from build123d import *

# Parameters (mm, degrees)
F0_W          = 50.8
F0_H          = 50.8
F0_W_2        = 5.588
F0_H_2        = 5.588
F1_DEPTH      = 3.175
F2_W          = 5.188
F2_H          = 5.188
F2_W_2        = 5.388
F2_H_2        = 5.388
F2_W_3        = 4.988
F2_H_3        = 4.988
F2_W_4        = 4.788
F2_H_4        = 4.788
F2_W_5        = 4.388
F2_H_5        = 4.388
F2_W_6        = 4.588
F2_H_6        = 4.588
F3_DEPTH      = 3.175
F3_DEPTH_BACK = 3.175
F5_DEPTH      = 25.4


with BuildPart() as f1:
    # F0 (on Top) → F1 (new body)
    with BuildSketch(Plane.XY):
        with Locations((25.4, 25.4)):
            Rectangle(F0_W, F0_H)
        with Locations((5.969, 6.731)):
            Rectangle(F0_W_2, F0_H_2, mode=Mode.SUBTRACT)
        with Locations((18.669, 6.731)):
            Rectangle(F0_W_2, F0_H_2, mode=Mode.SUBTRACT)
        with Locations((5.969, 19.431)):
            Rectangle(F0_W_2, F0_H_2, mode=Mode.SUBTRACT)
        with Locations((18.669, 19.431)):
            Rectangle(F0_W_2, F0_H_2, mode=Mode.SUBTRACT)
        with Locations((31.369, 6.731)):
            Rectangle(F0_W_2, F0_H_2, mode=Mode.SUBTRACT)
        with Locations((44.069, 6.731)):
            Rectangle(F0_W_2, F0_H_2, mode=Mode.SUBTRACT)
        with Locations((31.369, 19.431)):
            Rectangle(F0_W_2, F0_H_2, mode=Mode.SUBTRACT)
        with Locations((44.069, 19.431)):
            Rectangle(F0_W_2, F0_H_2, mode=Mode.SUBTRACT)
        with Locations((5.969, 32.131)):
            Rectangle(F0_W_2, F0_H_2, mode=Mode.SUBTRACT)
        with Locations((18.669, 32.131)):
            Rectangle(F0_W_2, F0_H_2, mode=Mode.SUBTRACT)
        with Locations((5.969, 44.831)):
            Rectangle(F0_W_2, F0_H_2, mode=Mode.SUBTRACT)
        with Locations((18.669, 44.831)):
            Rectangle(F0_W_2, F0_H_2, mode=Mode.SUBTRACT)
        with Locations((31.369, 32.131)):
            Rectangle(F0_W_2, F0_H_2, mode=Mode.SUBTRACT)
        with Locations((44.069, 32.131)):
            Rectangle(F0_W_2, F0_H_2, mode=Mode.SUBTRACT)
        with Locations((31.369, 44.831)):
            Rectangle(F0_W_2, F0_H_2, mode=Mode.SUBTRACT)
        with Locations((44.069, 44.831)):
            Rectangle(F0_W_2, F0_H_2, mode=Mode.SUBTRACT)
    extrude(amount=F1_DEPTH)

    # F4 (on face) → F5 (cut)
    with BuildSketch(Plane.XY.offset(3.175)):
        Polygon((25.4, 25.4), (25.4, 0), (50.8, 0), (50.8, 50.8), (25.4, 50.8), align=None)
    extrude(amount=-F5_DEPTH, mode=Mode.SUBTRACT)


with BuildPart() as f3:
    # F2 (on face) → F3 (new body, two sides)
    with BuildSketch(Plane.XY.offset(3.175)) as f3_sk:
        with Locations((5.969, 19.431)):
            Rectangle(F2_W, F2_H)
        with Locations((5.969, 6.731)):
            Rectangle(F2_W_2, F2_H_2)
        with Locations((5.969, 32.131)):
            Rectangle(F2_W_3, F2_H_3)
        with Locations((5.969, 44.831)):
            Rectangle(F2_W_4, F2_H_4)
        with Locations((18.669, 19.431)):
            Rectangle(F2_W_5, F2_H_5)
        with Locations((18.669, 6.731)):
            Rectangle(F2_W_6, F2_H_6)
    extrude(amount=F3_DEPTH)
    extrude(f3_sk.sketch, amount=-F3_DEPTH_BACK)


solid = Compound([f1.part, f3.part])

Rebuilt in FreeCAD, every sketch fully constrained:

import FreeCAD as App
import Part
import Sketcher
from FreeCAD import Vector
Q = App.Units.Quantity


def add_polygon(sketch, points):
    """Adds a closed chain of lines whose ends are joined by coincident constraints."""
    first, n = sketch.GeometryCount, len(points)
    for a, b in zip(points, points[1:] + points[:1]):
        sketch.addGeometry(Part.LineSegment(App.Vector(*a, 0), App.Vector(*b, 0)), False)
    for i in range(n):
        sketch.addConstraint(Sketcher.Constraint("Coincident", first + i, 2, first + (i + 1) % n, 1))

doc = App.newDocument("Part")
body = doc.addObject("PartDesign::Body", "Body")

sketch1 = body.newObject("Sketcher::SketchObject", "Sketch")
sketch1.AttachmentSupport = (doc.getObject("XY_Plane"), [""])
sketch1.MapMode = "FlatFace"
add_polygon(sketch1, [(0, 50.8), (0, 0), (50.8, 0), (50.8, 50.8)])
add_polygon(sketch1, [(8.763, 3.937), (3.175, 3.937), (3.175, 9.525), (8.763, 9.525)])
add_polygon(sketch1, [(21.463, 3.937), (15.875, 3.937), (15.875, 9.525), (21.463, 9.525)])
add_polygon(sketch1, [(8.763, 16.637), (3.175, 16.637), (3.175, 22.225), (8.763, 22.225)])
add_polygon(sketch1, [(21.463, 16.637), (15.875, 16.637), (15.875, 22.225), (21.463, 22.225)])
add_polygon(sketch1, [(34.163, 3.937), (28.575, 3.937), (28.575, 9.525), (34.163, 9.525)])
add_polygon(sketch1, [(46.863, 3.937), (41.275, 3.937), (41.275, 9.525), (46.863, 9.525)])
add_polygon(sketch1, [(34.163, 16.637), (28.575, 16.637), (28.575, 22.225), (34.163, 22.225)])
add_polygon(sketch1, [(46.863, 16.637), (41.275, 16.637), (41.275, 22.225), (46.863, 22.225)])
add_polygon(sketch1, [(8.763, 29.337), (3.175, 29.337), (3.175, 34.925), (8.763, 34.925)])
add_polygon(sketch1, [(21.463, 29.337), (15.875, 29.337), (15.875, 34.925), (21.463, 34.925)])
add_polygon(sketch1, [(8.763, 42.037), (3.175, 42.037), (3.175, 47.625), (8.763, 47.625)])
add_polygon(sketch1, [(21.463, 42.037), (15.875, 42.037), (15.875, 47.625), (21.463, 47.625)])
add_polygon(sketch1, [(34.163, 29.337), (28.575, 29.337), (28.575, 34.925), (34.163, 34.925)])
add_polygon(sketch1, [(46.863, 29.337), (41.275, 29.337), (41.275, 34.925), (46.863, 34.925)])
add_polygon(sketch1, [(34.163, 42.037), (28.575, 42.037), (28.575, 47.625), (34.163, 47.625)])
add_polygon(sketch1, [(46.863, 42.037), (41.275, 42.037), (41.275, 47.625), (46.863, 47.625)])
sketch1.addConstraint(Sketcher.Constraint("Vertical", 0))
sketch1.addConstraint(Sketcher.Constraint("Horizontal", 1))
sketch1.addConstraint(Sketcher.Constraint("Vertical", 2))
sketch1.addConstraint(Sketcher.Constraint("Horizontal", 3))
sketch1.addConstraint(Sketcher.Constraint("Horizontal", 4))
sketch1.addConstraint(Sketcher.Constraint("Vertical", 5))
sketch1.addConstraint(Sketcher.Constraint("Horizontal", 6))
sketch1.addConstraint(Sketcher.Constraint("Vertical", 7))
sketch1.addConstraint(Sketcher.Constraint("Horizontal", 8))
sketch1.addConstraint(Sketcher.Constraint("Vertical", 9))
sketch1.addConstraint(Sketcher.Constraint("Horizontal", 10))
sketch1.addConstraint(Sketcher.Constraint("Vertical", 11))
sketch1.addConstraint(Sketcher.Constraint("Horizontal", 12))
sketch1.addConstraint(Sketcher.Constraint("Vertical", 13))
sketch1.addConstraint(Sketcher.Constraint("Horizontal", 14))
sketch1.addConstraint(Sketcher.Constraint("Vertical", 15))
sketch1.addConstraint(Sketcher.Constraint("Horizontal", 16))
sketch1.addConstraint(Sketcher.Constraint("Vertical", 17))
sketch1.addConstraint(Sketcher.Constraint("Horizontal", 18))
sketch1.addConstraint(Sketcher.Constraint("Vertical", 19))
sketch1.addConstraint(Sketcher.Constraint("Horizontal", 20))
sketch1.addConstraint(Sketcher.Constraint("Vertical", 21))
sketch1.addConstraint(Sketcher.Constraint("Horizontal", 22))
sketch1.addConstraint(Sketcher.Constraint("Vertical", 23))
sketch1.addConstraint(Sketcher.Constraint("Horizontal", 24))
sketch1.addConstraint(Sketcher.Constraint("Vertical", 25))
sketch1.addConstraint(Sketcher.Constraint("Horizontal", 26))
sketch1.addConstraint(Sketcher.Constraint("Vertical", 27))
sketch1.addConstraint(Sketcher.Constraint("Horizontal", 28))
sketch1.addConstraint(Sketcher.Constraint("Vertical", 29))
sketch1.addConstraint(Sketcher.Constraint("Horizontal", 30))
sketch1.addConstraint(Sketcher.Constraint("Vertical", 31))
sketch1.addConstraint(Sketcher.Constraint("Horizontal", 32))
sketch1.addConstraint(Sketcher.Constraint("Vertical", 33))
sketch1.addConstraint(Sketcher.Constraint("Horizontal", 34))
sketch1.addConstraint(Sketcher.Constraint("Vertical", 35))
sketch1.addConstraint(Sketcher.Constraint("Horizontal", 36))
sketch1.addConstraint(Sketcher.Constraint("Vertical", 37))
sketch1.addConstraint(Sketcher.Constraint("Horizontal", 38))
sketch1.addConstraint(Sketcher.Constraint("Vertical", 39))
sketch1.addConstraint(Sketcher.Constraint("Horizontal", 40))
sketch1.addConstraint(Sketcher.Constraint("Vertical", 41))
sketch1.addConstraint(Sketcher.Constraint("Horizontal", 42))
sketch1.addConstraint(Sketcher.Constraint("Vertical", 43))
sketch1.addConstraint(Sketcher.Constraint("Horizontal", 44))
sketch1.addConstraint(Sketcher.Constraint("Vertical", 45))
sketch1.addConstraint(Sketcher.Constraint("Horizontal", 46))
sketch1.addConstraint(Sketcher.Constraint("Vertical", 47))
sketch1.addConstraint(Sketcher.Constraint("Horizontal", 48))
sketch1.addConstraint(Sketcher.Constraint("Vertical", 49))
sketch1.addConstraint(Sketcher.Constraint("Horizontal", 50))
sketch1.addConstraint(Sketcher.Constraint("Vertical", 51))
sketch1.addConstraint(Sketcher.Constraint("Horizontal", 52))
sketch1.addConstraint(Sketcher.Constraint("Vertical", 53))
sketch1.addConstraint(Sketcher.Constraint("Horizontal", 54))
sketch1.addConstraint(Sketcher.Constraint("Vertical", 55))
sketch1.addConstraint(Sketcher.Constraint("Horizontal", 56))
sketch1.addConstraint(Sketcher.Constraint("Vertical", 57))
sketch1.addConstraint(Sketcher.Constraint("Horizontal", 58))
sketch1.addConstraint(Sketcher.Constraint("Vertical", 59))
sketch1.addConstraint(Sketcher.Constraint("Horizontal", 60))
sketch1.addConstraint(Sketcher.Constraint("Vertical", 61))
sketch1.addConstraint(Sketcher.Constraint("Horizontal", 62))
sketch1.addConstraint(Sketcher.Constraint("Vertical", 63))
sketch1.addConstraint(Sketcher.Constraint("Horizontal", 64))
sketch1.addConstraint(Sketcher.Constraint("Vertical", 65))
sketch1.addConstraint(Sketcher.Constraint("Horizontal", 66))
sketch1.addConstraint(Sketcher.Constraint("Vertical", 67))
sketch1.addConstraint(Sketcher.Constraint("Coincident", 0, 2, -1, 1))
sketch1.addConstraint(Sketcher.Constraint("Horizontal", 7, 2, 8, 2))
sketch1.addConstraint(Sketcher.Constraint("Horizontal", 6, 2, 9, 2))
sketch1.addConstraint(Sketcher.Constraint("Horizontal", 15, 2, 16, 2))
sketch1.addConstraint(Sketcher.Constraint("Horizontal", 14, 2, 17, 2))
sketch1.addConstraint(Sketcher.Constraint("Horizontal", 11, 2, 20, 2))
sketch1.addConstraint(Sketcher.Constraint("Horizontal", 10, 2, 21, 2))
sketch1.addConstraint(Sketcher.Constraint("Horizontal", 23, 2, 24, 2))
sketch1.addConstraint(Sketcher.Constraint("Horizontal", 22, 2, 25, 2))
sketch1.addConstraint(Sketcher.Constraint("Horizontal", 19, 2, 28, 2))
sketch1.addConstraint(Sketcher.Constraint("Horizontal", 18, 2, 29, 2))
sketch1.addConstraint(Sketcher.Constraint("Horizontal", 31, 2, 32, 2))
sketch1.addConstraint(Sketcher.Constraint("Horizontal", 30, 2, 33, 2))
sketch1.addConstraint(Sketcher.Constraint("Horizontal", 39, 2, 40, 2))
sketch1.addConstraint(Sketcher.Constraint("Horizontal", 38, 2, 41, 2))
sketch1.addConstraint(Sketcher.Constraint("Horizontal", 47, 2, 48, 2))
sketch1.addConstraint(Sketcher.Constraint("Horizontal", 46, 2, 49, 2))
sketch1.addConstraint(Sketcher.Constraint("Horizontal", 43, 2, 52, 2))
sketch1.addConstraint(Sketcher.Constraint("Horizontal", 42, 2, 53, 2))
sketch1.addConstraint(Sketcher.Constraint("Horizontal", 55, 2, 56, 2))
sketch1.addConstraint(Sketcher.Constraint("Horizontal", 54, 2, 57, 2))
sketch1.addConstraint(Sketcher.Constraint("Horizontal", 51, 2, 60, 2))
sketch1.addConstraint(Sketcher.Constraint("Horizontal", 50, 2, 61, 2))
sketch1.addConstraint(Sketcher.Constraint("Horizontal", 63, 2, 64, 2))
sketch1.addConstraint(Sketcher.Constraint("Horizontal", 62, 2, 65, 2))
sketch1.addConstraint(Sketcher.Constraint("Vertical", 5, 2, 12, 2))
sketch1.addConstraint(Sketcher.Constraint("Vertical", 7, 2, 14, 2))
sketch1.addConstraint(Sketcher.Constraint("Vertical", 9, 2, 16, 2))
sketch1.addConstraint(Sketcher.Constraint("Vertical", 11, 2, 18, 2))
sketch1.addConstraint(Sketcher.Constraint("Vertical", 21, 2, 28, 2))
sketch1.addConstraint(Sketcher.Constraint("Vertical", 23, 2, 30, 2))
sketch1.addConstraint(Sketcher.Constraint("Vertical", 25, 2, 32, 2))
sketch1.addConstraint(Sketcher.Constraint("Vertical", 27, 2, 34, 2))
sketch1.addConstraint(Sketcher.Constraint("Vertical", 13, 2, 36, 2))
sketch1.addConstraint(Sketcher.Constraint("Vertical", 15, 2, 38, 2))
sketch1.addConstraint(Sketcher.Constraint("Vertical", 17, 2, 40, 2))
sketch1.addConstraint(Sketcher.Constraint("Vertical", 19, 2, 42, 2))
sketch1.addConstraint(Sketcher.Constraint("Vertical", 37, 2, 44, 2))
sketch1.addConstraint(Sketcher.Constraint("Vertical", 39, 2, 46, 2))
sketch1.addConstraint(Sketcher.Constraint("Vertical", 41, 2, 48, 2))
sketch1.addConstraint(Sketcher.Constraint("Vertical", 43, 2, 50, 2))
sketch1.addConstraint(Sketcher.Constraint("Vertical", 29, 2, 52, 2))
sketch1.addConstraint(Sketcher.Constraint("Vertical", 31, 2, 54, 2))
sketch1.addConstraint(Sketcher.Constraint("Vertical", 33, 2, 56, 2))
sketch1.addConstraint(Sketcher.Constraint("Vertical", 35, 2, 58, 2))
sketch1.addConstraint(Sketcher.Constraint("Vertical", 53, 2, 60, 2))
sketch1.addConstraint(Sketcher.Constraint("Vertical", 55, 2, 62, 2))
sketch1.addConstraint(Sketcher.Constraint("Vertical", 57, 2, 64, 2))
sketch1.addConstraint(Sketcher.Constraint("Vertical", 59, 2, 66, 2))
sketch1.addConstraint(Sketcher.Constraint("Equal", 6, 8))
sketch1.addConstraint(Sketcher.Constraint("Equal", 18, 20))
sketch1.addConstraint(Sketcher.Constraint("Equal", 22, 24))
sketch1.addConstraint(Sketcher.Constraint("Equal", 3, 0))
sketch1.addConstraint(Sketcher.Constraint("Equal", 66, 5))
sketch1.addConstraint(Sketcher.Constraint("Equal", 11, 13))
sketch1.addConstraint(Sketcher.Constraint("Equal", 35, 37))
sketch1.addConstraint(Sketcher.Constraint("Equal", 43, 45))
sketch1.addConstraint(Sketcher.Constraint("DistanceX", 1, 1, 1, 2, Q("2 in")))
sketch1.addConstraint(Sketcher.Constraint("DistanceX", 4, 2, 4, 1, Q("0.22 in")))
sketch1.addConstraint(Sketcher.Constraint("DistanceX", -1, 1, 4, 2, Q("0.125 in")))
sketch1.addConstraint(Sketcher.Constraint("DistanceY", -1, 1, 4, 2, Q("0.155 in")))
sketch1.addConstraint(Sketcher.Constraint("DistanceX", -1, 1, 8, 2, Q("0.625 in")))
sketch1.addConstraint(Sketcher.Constraint("DistanceY", -1, 1, 12, 2, Q("0.655 in")))
sketch1.addConstraint(Sketcher.Constraint("DistanceX", -1, 1, 20, 2, Q("1.125 in")))
sketch1.addConstraint(Sketcher.Constraint("DistanceX", -1, 1, 24, 2, Q("1.625 in")))
sketch1.addConstraint(Sketcher.Constraint("DistanceY", -1, 1, 36, 2, Q("1.155 in")))
sketch1.addConstraint(Sketcher.Constraint("DistanceY", -1, 1, 44, 2, Q("1.655 in")))
pad1 = body.newObject("PartDesign::Pad", "Pad")
pad1.Profile = sketch1
pad1.Length = Q("0.125 in")

sketch2 = body.newObject("Sketcher::SketchObject", "Sketch001")
sketch2.AttachmentSupport = (doc.getObject("XY_Plane"), [""])
sketch2.MapMode = "FlatFace"
sketch2.AttachmentOffset = App.Placement(Vector(0, 0, 0.125 * 25.4), App.Rotation())
add_polygon(sketch2, [(25.4, 0), (50.8, 0), (50.8, 50.8), (25.4, 50.8)])
sketch2.addConstraint(Sketcher.Constraint("Horizontal", 0))
sketch2.addConstraint(Sketcher.Constraint("Vertical", 1))
sketch2.addConstraint(Sketcher.Constraint("Horizontal", 2))
sketch2.addConstraint(Sketcher.Constraint("Vertical", 3))
sketch2.addConstraint(Sketcher.Constraint("PointOnObject", 0, 2, -1))
sketch2.addConstraint(Sketcher.Constraint("DistanceX", 0, 1, 0, 2, Q("1 in")))
sketch2.addConstraint(Sketcher.Constraint("DistanceY", 1, 1, 1, 2, Q("2 in")))
sketch2.addConstraint(Sketcher.Constraint("DistanceX", -1, 1, 0, 2, Q("2 in")))
pocket1 = body.newObject("PartDesign::Pocket", "Pocket")
pocket1.Profile = sketch2
pocket1.Length = Q("1 in")
body2 = doc.addObject("PartDesign::Body", "Body001")
body2.AllowCompound = True

sketch3 = body2.newObject("Sketcher::SketchObject", "Sketch002")
sketch3.AttachmentSupport = (doc.getObject("XY_Plane001"), [""])
sketch3.MapMode = "FlatFace"
sketch3.AttachmentOffset = App.Placement(Vector(0, 0, 0.125 * 25.4), App.Rotation())
add_polygon(sketch3, [(3.375, 22.025), (3.375, 16.837), (8.563, 16.837), (8.563, 22.025)])
add_polygon(sketch3, [(3.275, 9.425), (3.275, 4.037), (8.663, 4.037), (8.663, 9.425)])
add_polygon(sketch3, [(3.475, 34.625), (3.475, 29.637), (8.463, 29.637), (8.463, 34.625)])
add_polygon(sketch3, [(3.575, 47.225), (3.575, 42.437), (8.363, 42.437), (8.363, 47.225)])
add_polygon(sketch3, [(16.475, 21.625), (16.475, 17.237), (20.863, 17.237), (20.863, 21.625)])
add_polygon(sketch3, [(16.375, 9.025), (16.375, 4.437), (20.963, 4.437), (20.963, 9.025)])
sketch3.addConstraint(Sketcher.Constraint("Vertical", 0))
sketch3.addConstraint(Sketcher.Constraint("Horizontal", 1))
sketch3.addConstraint(Sketcher.Constraint("Vertical", 2))
sketch3.addConstraint(Sketcher.Constraint("Horizontal", 3))
sketch3.addConstraint(Sketcher.Constraint("Vertical", 4))
sketch3.addConstraint(Sketcher.Constraint("Horizontal", 5))
sketch3.addConstraint(Sketcher.Constraint("Vertical", 6))
sketch3.addConstraint(Sketcher.Constraint("Horizontal", 7))
sketch3.addConstraint(Sketcher.Constraint("Vertical", 8))
sketch3.addConstraint(Sketcher.Constraint("Horizontal", 9))
sketch3.addConstraint(Sketcher.Constraint("Vertical", 10))
sketch3.addConstraint(Sketcher.Constraint("Horizontal", 11))
sketch3.addConstraint(Sketcher.Constraint("Vertical", 12))
sketch3.addConstraint(Sketcher.Constraint("Horizontal", 13))
sketch3.addConstraint(Sketcher.Constraint("Vertical", 14))
sketch3.addConstraint(Sketcher.Constraint("Horizontal", 15))
sketch3.addConstraint(Sketcher.Constraint("Vertical", 16))
sketch3.addConstraint(Sketcher.Constraint("Horizontal", 17))
sketch3.addConstraint(Sketcher.Constraint("Vertical", 18))
sketch3.addConstraint(Sketcher.Constraint("Horizontal", 19))
sketch3.addConstraint(Sketcher.Constraint("Vertical", 20))
sketch3.addConstraint(Sketcher.Constraint("Horizontal", 21))
sketch3.addConstraint(Sketcher.Constraint("Vertical", 22))
sketch3.addConstraint(Sketcher.Constraint("Horizontal", 23))
sketch3.addConstraint(Sketcher.Constraint("Equal", 3, 0))
sketch3.addConstraint(Sketcher.Constraint("Equal", 7, 4))
sketch3.addConstraint(Sketcher.Constraint("Equal", 11, 8))
sketch3.addConstraint(Sketcher.Constraint("Equal", 15, 12))
sketch3.addConstraint(Sketcher.Constraint("Equal", 19, 16))
sketch3.addConstraint(Sketcher.Constraint("Equal", 23, 20))
sketch3.addConstraint(Sketcher.Constraint("DistanceX", 1, 1, 1, 2, Q("5.188 mm")))
sketch3.addConstraint(Sketcher.Constraint("DistanceX", 5, 1, 5, 2, Q("5.388 mm")))
sketch3.addConstraint(Sketcher.Constraint("DistanceX", 9, 1, 9, 2, Q("4.988 mm")))
sketch3.addConstraint(Sketcher.Constraint("DistanceX", 13, 1, 13, 2, Q("4.788 mm")))
sketch3.addConstraint(Sketcher.Constraint("DistanceX", 17, 1, 17, 2, Q("4.388 mm")))
sketch3.addConstraint(Sketcher.Constraint("DistanceX", 21, 1, 21, 2, Q("4.588 mm")))
sketch3.addConstraint(Sketcher.Constraint("DistanceX", -1, 1, 0, 2, Q("3.375 mm")))
sketch3.addConstraint(Sketcher.Constraint("DistanceY", -1, 1, 0, 2, Q("16.837 mm")))
sketch3.addConstraint(Sketcher.Constraint("DistanceX", -1, 1, 4, 2, Q("3.275 mm")))
sketch3.addConstraint(Sketcher.Constraint("DistanceY", -1, 1, 4, 2, Q("4.037 mm")))
sketch3.addConstraint(Sketcher.Constraint("DistanceX", -1, 1, 8, 2, Q("3.475 mm")))
sketch3.addConstraint(Sketcher.Constraint("DistanceY", -1, 1, 8, 2, Q("29.637 mm")))
sketch3.addConstraint(Sketcher.Constraint("DistanceX", -1, 1, 12, 2, Q("3.575 mm")))
sketch3.addConstraint(Sketcher.Constraint("DistanceY", -1, 1, 12, 2, Q("42.437 mm")))
sketch3.addConstraint(Sketcher.Constraint("DistanceX", -1, 1, 16, 2, Q("16.475 mm")))
sketch3.addConstraint(Sketcher.Constraint("DistanceY", -1, 1, 16, 2, Q("17.237 mm")))
sketch3.addConstraint(Sketcher.Constraint("DistanceX", -1, 1, 20, 2, Q("16.375 mm")))
sketch3.addConstraint(Sketcher.Constraint("DistanceY", -1, 1, 20, 2, Q("4.437 mm")))
pad2 = body2.newObject("PartDesign::Pad", "Pad001")
pad2.Profile = sketch3
pad2.Type = "TwoLengths"
pad2.Length = Q("0.125 in")
pad2.Length2 = Q("0.125 in")

doc.recompute()
